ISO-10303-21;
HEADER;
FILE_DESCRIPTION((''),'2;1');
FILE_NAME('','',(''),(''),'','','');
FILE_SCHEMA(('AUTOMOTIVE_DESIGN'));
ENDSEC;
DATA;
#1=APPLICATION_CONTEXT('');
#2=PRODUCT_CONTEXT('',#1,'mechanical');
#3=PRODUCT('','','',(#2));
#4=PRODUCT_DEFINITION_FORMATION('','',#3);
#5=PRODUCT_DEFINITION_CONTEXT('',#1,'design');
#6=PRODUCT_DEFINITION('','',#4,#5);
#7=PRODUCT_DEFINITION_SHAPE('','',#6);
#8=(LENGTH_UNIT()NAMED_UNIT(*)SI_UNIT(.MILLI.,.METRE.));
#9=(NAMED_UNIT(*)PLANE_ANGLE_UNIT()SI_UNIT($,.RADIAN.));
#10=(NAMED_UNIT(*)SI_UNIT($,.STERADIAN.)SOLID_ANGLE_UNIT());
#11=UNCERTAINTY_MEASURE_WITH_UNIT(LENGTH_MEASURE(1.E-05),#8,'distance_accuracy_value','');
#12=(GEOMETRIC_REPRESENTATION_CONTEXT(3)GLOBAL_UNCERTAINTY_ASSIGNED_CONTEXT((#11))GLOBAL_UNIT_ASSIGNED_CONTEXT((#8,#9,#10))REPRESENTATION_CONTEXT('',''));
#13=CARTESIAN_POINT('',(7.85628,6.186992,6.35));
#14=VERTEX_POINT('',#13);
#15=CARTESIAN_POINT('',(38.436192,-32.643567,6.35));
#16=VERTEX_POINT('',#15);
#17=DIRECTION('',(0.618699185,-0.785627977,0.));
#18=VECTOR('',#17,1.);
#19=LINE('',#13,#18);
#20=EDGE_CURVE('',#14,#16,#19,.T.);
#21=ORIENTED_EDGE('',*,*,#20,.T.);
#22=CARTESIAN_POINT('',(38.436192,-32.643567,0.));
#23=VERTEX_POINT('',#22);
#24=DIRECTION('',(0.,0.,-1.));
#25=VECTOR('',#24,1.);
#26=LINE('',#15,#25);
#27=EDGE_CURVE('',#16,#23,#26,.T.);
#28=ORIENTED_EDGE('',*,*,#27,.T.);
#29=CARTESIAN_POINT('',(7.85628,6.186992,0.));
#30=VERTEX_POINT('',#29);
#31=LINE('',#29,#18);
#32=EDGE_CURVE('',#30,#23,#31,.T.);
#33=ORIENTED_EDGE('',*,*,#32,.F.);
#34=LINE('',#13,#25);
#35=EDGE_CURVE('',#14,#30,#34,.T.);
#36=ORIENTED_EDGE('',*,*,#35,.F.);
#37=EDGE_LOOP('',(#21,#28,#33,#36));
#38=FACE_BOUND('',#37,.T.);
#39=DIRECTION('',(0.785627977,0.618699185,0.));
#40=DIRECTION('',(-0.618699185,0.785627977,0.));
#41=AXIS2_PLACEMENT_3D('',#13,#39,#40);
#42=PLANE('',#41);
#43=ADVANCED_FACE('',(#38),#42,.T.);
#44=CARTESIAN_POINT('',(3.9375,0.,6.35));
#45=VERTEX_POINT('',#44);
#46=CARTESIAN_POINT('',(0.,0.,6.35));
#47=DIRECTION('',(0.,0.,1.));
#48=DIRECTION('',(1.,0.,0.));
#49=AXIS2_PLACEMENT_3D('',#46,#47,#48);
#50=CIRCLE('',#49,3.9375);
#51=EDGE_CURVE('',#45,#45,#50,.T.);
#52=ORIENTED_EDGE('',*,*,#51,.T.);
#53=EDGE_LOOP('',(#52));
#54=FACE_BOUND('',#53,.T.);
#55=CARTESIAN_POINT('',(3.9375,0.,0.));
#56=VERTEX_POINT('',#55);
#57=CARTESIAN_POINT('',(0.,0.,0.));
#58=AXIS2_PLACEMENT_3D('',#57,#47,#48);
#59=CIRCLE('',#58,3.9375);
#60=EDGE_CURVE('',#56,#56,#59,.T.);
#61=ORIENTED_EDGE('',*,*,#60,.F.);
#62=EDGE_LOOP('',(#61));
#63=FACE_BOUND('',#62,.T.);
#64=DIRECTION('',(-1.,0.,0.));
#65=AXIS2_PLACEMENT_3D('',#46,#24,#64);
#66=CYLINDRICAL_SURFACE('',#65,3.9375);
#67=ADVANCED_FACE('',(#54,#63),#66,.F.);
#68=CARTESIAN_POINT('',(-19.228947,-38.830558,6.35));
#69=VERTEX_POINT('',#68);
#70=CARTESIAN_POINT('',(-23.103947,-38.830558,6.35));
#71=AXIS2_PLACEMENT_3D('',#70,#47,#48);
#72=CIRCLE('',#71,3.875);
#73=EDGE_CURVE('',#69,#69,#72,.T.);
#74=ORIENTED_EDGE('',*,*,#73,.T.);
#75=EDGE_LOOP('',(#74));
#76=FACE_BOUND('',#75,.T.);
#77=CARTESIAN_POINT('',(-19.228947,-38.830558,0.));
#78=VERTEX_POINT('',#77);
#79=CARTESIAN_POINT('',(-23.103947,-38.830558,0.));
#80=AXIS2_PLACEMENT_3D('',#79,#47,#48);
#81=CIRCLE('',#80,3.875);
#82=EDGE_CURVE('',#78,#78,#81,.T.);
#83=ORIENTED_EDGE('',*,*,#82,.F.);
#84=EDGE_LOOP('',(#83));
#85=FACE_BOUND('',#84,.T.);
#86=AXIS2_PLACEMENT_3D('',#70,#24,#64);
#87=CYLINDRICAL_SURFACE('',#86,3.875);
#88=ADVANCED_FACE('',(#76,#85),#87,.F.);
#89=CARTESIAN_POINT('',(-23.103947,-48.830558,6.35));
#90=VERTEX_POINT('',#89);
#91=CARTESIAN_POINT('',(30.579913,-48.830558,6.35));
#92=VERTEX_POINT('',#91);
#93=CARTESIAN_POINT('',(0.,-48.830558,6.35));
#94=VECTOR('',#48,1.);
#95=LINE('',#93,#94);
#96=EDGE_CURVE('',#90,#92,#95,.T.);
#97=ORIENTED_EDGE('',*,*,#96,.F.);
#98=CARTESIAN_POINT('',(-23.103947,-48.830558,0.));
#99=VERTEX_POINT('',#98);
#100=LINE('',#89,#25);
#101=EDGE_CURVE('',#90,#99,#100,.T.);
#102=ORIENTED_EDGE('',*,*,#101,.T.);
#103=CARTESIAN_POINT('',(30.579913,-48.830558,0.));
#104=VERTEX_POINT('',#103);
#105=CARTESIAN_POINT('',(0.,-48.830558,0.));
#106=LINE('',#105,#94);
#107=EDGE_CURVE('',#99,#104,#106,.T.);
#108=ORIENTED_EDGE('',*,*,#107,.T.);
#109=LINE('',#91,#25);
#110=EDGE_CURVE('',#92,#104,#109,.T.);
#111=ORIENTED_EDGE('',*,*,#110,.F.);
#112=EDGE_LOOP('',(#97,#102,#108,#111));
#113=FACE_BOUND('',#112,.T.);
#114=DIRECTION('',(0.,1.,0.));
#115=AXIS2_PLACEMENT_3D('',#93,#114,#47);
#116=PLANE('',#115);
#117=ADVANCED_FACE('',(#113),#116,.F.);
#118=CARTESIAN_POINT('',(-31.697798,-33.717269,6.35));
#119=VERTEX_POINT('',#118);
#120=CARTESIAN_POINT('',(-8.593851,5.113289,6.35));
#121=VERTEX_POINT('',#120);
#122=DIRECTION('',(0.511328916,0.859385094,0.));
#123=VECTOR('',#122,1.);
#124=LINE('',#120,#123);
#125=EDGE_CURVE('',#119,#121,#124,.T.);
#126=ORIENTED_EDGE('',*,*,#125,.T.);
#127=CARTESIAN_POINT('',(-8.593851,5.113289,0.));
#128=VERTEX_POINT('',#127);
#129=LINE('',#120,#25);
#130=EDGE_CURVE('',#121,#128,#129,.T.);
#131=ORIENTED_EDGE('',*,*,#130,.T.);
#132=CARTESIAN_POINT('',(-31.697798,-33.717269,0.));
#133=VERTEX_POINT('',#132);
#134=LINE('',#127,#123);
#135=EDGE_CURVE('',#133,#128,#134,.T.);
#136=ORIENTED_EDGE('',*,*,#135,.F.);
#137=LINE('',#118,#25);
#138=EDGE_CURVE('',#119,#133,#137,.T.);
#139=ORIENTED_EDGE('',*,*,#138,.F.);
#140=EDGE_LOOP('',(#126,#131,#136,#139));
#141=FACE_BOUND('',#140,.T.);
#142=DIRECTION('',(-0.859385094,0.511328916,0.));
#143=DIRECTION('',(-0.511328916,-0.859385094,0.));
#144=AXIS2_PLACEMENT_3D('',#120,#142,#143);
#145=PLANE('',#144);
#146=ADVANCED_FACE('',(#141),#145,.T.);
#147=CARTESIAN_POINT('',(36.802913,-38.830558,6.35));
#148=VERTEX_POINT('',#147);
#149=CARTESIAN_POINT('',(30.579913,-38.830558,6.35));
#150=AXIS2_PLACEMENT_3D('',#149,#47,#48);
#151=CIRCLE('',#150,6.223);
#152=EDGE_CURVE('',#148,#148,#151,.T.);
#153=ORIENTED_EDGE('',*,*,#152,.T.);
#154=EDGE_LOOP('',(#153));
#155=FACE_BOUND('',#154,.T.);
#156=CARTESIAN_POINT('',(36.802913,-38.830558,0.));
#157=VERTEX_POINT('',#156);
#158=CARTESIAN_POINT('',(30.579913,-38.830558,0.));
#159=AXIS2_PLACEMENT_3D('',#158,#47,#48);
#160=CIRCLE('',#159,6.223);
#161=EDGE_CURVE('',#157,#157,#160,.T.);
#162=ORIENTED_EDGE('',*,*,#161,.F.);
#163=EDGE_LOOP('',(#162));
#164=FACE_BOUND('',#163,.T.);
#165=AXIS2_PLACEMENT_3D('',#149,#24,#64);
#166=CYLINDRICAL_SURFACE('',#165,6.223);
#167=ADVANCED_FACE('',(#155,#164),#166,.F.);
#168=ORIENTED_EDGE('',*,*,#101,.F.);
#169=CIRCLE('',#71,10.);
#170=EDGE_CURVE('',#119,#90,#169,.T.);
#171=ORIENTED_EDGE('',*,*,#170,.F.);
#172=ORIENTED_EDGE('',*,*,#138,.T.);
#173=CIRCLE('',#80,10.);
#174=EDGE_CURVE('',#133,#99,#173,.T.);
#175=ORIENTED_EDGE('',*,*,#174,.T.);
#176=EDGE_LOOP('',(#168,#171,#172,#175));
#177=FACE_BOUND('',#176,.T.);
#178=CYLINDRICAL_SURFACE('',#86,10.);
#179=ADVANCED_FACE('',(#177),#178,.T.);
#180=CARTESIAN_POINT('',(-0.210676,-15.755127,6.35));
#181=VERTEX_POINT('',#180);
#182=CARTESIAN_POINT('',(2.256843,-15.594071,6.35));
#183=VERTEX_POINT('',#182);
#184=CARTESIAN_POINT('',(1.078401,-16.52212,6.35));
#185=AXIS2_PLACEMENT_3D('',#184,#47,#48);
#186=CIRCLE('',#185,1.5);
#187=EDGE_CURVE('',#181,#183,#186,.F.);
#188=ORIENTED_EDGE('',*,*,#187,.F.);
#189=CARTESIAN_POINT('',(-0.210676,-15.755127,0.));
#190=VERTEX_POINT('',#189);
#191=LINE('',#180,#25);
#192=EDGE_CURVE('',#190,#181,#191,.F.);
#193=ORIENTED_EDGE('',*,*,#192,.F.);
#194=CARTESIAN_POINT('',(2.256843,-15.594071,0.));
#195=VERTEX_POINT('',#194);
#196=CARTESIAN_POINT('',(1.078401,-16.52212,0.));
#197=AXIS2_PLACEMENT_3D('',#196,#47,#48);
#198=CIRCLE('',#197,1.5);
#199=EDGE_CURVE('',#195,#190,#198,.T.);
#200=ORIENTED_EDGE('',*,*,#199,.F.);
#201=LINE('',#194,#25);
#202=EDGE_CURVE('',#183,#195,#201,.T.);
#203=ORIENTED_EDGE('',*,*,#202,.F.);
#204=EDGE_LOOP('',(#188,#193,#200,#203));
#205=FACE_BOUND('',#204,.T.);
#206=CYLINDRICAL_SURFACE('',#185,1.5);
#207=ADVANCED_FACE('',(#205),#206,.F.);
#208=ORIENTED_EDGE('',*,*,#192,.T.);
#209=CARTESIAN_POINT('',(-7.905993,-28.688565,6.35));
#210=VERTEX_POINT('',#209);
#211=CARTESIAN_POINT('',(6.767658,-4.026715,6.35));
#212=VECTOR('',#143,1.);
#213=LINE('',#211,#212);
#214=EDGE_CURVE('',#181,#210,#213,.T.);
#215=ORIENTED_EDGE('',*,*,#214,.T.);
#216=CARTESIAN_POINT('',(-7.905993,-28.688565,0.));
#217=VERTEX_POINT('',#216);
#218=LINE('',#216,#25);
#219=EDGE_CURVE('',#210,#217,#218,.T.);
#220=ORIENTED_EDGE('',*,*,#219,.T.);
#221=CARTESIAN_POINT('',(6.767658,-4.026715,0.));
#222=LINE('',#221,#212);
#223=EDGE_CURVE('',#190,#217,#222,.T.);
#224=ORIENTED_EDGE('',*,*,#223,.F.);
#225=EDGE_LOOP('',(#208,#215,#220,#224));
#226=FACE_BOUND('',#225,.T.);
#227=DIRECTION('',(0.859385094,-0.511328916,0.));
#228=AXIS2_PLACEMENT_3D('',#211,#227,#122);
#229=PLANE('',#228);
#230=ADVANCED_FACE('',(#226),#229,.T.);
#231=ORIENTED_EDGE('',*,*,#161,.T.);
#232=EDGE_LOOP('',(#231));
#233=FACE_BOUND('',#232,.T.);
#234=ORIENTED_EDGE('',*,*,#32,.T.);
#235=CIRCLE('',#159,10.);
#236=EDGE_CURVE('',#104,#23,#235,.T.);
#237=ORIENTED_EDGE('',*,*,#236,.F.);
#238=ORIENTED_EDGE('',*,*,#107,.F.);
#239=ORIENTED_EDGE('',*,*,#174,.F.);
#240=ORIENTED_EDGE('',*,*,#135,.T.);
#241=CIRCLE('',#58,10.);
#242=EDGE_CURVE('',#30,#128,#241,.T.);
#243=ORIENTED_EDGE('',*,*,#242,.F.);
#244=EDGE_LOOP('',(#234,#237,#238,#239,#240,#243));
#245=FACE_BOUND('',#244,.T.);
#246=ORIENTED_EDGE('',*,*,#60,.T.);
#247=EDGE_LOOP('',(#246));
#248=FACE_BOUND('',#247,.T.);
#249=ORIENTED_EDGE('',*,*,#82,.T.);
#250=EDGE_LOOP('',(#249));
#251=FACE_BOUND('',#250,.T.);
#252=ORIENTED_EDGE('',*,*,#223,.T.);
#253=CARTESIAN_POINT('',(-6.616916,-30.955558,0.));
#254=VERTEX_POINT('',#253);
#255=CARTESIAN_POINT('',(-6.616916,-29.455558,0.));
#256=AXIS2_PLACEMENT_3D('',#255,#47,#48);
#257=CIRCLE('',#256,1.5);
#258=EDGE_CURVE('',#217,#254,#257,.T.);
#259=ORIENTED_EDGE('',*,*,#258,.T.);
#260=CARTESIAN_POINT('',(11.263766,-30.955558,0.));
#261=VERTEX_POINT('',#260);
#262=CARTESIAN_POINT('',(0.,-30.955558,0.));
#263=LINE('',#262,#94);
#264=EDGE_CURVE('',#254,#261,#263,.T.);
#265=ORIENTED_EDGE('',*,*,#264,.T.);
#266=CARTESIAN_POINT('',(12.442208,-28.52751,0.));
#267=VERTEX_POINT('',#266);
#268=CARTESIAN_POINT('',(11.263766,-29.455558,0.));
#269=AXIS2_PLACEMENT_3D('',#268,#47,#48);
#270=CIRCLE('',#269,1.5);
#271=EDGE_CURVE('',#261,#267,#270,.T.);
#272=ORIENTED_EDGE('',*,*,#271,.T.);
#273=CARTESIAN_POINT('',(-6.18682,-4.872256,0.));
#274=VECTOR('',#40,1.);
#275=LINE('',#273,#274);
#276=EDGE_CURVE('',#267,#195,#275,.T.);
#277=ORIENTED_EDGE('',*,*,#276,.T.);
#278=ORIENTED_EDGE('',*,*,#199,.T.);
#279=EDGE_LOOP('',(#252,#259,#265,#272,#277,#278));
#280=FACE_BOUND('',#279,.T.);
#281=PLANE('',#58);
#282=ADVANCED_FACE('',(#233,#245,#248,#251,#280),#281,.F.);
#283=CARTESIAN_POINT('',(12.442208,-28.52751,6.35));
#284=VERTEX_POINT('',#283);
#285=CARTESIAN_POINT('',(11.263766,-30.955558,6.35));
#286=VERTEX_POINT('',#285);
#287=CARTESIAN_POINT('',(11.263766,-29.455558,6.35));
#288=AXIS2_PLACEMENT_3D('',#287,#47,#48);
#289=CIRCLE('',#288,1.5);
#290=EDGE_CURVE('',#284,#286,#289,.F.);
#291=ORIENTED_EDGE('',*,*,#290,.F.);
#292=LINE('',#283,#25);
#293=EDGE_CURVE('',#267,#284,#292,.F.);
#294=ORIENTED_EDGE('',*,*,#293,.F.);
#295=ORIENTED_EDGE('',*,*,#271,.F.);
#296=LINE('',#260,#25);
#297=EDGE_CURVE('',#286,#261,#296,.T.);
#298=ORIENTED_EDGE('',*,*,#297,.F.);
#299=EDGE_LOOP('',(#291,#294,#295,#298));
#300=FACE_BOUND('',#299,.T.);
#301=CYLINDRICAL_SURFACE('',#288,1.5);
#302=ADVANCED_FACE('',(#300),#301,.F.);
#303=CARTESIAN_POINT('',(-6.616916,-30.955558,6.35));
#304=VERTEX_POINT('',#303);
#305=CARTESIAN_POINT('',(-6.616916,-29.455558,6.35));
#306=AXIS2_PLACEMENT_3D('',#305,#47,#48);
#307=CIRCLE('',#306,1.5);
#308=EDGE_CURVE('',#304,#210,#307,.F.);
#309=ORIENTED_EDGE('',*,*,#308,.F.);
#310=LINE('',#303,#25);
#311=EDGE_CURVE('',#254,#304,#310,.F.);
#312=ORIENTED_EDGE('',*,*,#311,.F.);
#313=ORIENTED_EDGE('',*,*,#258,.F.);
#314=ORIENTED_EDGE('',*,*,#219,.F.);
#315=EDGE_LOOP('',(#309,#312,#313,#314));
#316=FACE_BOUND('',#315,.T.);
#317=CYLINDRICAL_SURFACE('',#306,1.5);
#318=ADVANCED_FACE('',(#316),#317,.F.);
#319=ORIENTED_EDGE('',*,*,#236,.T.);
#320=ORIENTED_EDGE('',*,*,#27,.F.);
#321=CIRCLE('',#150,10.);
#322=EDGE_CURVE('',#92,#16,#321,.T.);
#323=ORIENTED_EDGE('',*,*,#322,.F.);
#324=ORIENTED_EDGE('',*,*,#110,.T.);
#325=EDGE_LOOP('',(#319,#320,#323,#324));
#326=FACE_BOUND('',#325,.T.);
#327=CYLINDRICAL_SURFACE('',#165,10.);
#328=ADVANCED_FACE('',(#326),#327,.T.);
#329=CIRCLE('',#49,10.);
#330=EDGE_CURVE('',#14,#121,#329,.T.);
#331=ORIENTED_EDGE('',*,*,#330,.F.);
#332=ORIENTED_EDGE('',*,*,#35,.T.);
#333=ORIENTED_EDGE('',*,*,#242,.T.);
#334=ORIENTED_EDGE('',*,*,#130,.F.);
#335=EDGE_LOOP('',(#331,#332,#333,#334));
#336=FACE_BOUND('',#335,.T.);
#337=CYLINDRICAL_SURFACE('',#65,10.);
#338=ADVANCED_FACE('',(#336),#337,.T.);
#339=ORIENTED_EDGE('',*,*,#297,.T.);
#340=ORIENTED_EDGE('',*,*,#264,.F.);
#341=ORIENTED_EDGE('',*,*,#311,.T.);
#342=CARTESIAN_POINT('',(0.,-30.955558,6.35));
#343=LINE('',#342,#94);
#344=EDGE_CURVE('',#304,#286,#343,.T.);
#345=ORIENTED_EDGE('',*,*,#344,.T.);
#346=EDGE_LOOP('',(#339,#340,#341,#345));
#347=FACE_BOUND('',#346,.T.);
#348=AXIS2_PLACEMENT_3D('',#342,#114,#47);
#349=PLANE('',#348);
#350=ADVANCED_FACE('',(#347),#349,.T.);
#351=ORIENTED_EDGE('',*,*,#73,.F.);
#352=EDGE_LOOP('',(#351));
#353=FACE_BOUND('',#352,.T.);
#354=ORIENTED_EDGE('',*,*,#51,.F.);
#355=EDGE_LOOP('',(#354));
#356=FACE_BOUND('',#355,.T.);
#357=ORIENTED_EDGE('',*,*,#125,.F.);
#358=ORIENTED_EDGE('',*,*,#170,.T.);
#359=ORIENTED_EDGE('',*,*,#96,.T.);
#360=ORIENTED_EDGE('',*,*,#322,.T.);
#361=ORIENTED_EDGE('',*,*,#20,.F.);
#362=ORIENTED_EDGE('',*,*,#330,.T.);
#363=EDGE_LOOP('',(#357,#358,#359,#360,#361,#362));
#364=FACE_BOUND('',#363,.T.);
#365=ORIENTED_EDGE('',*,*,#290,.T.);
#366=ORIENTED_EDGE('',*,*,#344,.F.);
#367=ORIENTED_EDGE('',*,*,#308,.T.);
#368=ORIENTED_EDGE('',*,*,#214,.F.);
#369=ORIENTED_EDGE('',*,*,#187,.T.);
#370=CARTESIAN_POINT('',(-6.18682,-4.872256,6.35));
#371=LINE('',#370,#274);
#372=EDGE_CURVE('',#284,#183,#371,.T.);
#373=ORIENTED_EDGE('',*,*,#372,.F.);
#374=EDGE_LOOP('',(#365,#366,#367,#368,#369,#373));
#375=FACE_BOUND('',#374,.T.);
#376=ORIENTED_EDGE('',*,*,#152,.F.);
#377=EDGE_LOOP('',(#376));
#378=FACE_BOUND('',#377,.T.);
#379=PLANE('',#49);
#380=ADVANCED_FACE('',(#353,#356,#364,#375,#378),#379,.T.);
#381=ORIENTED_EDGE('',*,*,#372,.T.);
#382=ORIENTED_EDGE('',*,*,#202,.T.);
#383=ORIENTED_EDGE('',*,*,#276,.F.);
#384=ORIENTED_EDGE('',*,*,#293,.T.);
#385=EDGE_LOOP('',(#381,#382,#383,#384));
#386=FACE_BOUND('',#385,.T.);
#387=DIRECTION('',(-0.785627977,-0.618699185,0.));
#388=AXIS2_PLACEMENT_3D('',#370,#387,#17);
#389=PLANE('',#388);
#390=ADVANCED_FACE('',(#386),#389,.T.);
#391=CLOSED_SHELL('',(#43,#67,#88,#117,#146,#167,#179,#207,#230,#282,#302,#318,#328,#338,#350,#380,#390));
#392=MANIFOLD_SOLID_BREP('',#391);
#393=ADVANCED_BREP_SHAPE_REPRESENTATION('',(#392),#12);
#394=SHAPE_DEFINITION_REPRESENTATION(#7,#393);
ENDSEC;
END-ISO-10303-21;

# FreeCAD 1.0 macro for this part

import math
import FreeCAD as App
import Part
import Sketcher
from FreeCAD import Vector
Q = App.Units.Quantity


def edges_at(feature, points):
    """Names of the edges that pass closest to the given points."""
    edges = feature.Shape.Edges
    near = lambda p: min(range(len(edges)), key=lambda i: edges[i].distToShape(Part.Vertex(*p))[0])
    return sorted({f"Edge{near(p) + 1}" for p in points})

doc = App.newDocument("Part")
body = doc.addObject("PartDesign::Body", "Body")

sketch1 = body.newObject("Sketcher::SketchObject", "Sketch")
sketch1.AttachmentSupport = (doc.getObject("XY_Plane"), [""])
sketch1.MapMode = "FlatFace"
sketch1.addGeometry([
    Part.LineSegment(Vector(-8.6, 5.1, 0), Vector(-31.7, -33.7, 0)),
    Part.ArcOfCircle(Part.Circle(Vector(-23.1, -38.8, 0), Vector(0, 0, 1), 10), math.radians(149), math.radians(270)),
    Part.LineSegment(Vector(-23.1, -48.8, 0), Vector(30.6, -48.8, 0)),
    Part.ArcOfCircle(Part.Circle(Vector(30.6, -38.8, 0), Vector(0, 0, 1), 10), math.radians(-90), math.radians(38)),
    Part.LineSegment(Vector(38.4, -32.6, 0), Vector(7.9, 6.2, 0)),
    Part.ArcOfCircle(Part.Circle(Vector(0, 0, 0), Vector(0, 0, 1), 10), math.radians(38), math.radians(149)),
    Part.LineSegment(Vector(14.4, -31, 0), Vector(-9.3, -31, 0)),
    Part.LineSegment(Vector(-9.3, -31, 0), Vector(0.9, -13.9, 0)),
    Part.LineSegment(Vector(0.9, -13.9, 0), Vector(14.4, -31, 0)),
    Part.Circle(Vector(0, 0, 0), Vector(0, 0, 1), 3.9),
    Part.Circle(Vector(-23.1, -38.8, 0), Vector(0, 0, 1), 3.9),
    Part.Circle(Vector(30.6, -38.8, 0), Vector(0, 0, 1), 6.2),
], False)
sketch1.addConstraint([
    Sketcher.Constraint("Tangent", 0, 2, 1, 1),
    Sketcher.Constraint("Tangent", 1, 2, 2, 1),
    Sketcher.Constraint("Tangent", 2, 2, 3, 1),
    Sketcher.Constraint("Tangent", 3, 2, 4, 1),
    Sketcher.Constraint("Tangent", 4, 2, 5, 1),
    Sketcher.Constraint("Tangent", 5, 2, 0, 1),
    Sketcher.Constraint("Coincident", 6, 2, 7, 1),
    Sketcher.Constraint("Coincident", 7, 2, 8, 1),
    Sketcher.Constraint("Coincident", 8, 2, 6, 1),
    Sketcher.Constraint("Horizontal", 2),
    Sketcher.Constraint("Horizontal", 6),
    Sketcher.Constraint("Coincident", 5, 3, -1, 1),
    Sketcher.Constraint("Coincident", 9, 3, -1, 1),
    Sketcher.Constraint("Coincident", 10, 3, 1, 3),
    Sketcher.Constraint("Coincident", 11, 3, 3, 3),
    Sketcher.Constraint("Equal", 1, 3),
    Sketcher.Constraint("Equal", 3, 5),
    Sketcher.Constraint("Parallel", 0, 7),
    Sketcher.Constraint("Parallel", 4, 8),
    Sketcher.Constraint("Radius", 1, Q("10 mm")),
    Sketcher.Constraint("Diameter", 10, Q("7.75 mm")),
    Sketcher.Constraint("Diameter", 9, Q("7.875 mm")),
    Sketcher.Constraint("Diameter", 11, Q("12.446 mm")),
    Sketcher.Constraint("DistanceY", 1, 3, 6, 2, Q("7.875 mm")),
    Sketcher.Constraint("DistanceX", 2, 1, 2, 2, Q("53.683859 mm")),
    Sketcher.Constraint("DistanceX", 6, 2, 6, 1, Q("23.609191 mm")),
    Sketcher.Constraint("Distance", 0, Q("45.184119 mm")),
    Sketcher.Constraint("Distance", 4, Q("49.42614 mm")),
    Sketcher.Constraint("DistanceX", 6, 2, -1, 1, Q("9.254841 mm")),
])
pad1 = body.newObject("PartDesign::Pad", "Pad")
pad1.Profile = sketch1
pad1.Length = 6.35
doc.recompute()

fillet = body.newObject("PartDesign::Fillet", "Fillet")
fillet.Base = (pad1, edges_at(pad1, [(0.906, -13.879, 3.175), (-9.255, -30.956, 3.175), (14.354, -30.956, 3.175)]))
fillet.Radius = 1.5

doc.recompute()
